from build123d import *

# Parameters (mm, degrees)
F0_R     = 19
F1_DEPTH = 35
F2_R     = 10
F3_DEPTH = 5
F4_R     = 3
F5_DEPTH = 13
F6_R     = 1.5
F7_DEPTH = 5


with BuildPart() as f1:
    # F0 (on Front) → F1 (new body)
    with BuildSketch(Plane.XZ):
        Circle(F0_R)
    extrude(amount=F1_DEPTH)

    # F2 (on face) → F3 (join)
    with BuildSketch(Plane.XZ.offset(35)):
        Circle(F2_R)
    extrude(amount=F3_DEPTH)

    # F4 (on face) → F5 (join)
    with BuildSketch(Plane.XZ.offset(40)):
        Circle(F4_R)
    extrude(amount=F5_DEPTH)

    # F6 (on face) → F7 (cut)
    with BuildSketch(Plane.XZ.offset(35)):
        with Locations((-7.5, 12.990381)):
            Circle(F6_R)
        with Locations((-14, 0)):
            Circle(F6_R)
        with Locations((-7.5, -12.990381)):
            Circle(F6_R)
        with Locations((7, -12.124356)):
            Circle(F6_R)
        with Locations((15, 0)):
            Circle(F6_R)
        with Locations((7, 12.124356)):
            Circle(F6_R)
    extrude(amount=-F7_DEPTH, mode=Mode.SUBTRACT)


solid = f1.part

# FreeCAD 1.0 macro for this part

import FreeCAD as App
import Part
import Sketcher

V = App.Vector
Q = App.Units.Quantity

doc = App.newDocument("Part")
params = doc.addObject("Spreadsheet::Sheet", "Params")
for row, (alias, value) in enumerate([
    ("sketch1_diameter", "38 mm"),
    ("pad1_length", "35 mm"),
    ("sketch2_diameter", "20 mm"),
    ("pad2_length", "5 mm"),
    ("sketch3_diameter", "6 mm"),
    ("pad3_length", "13 mm"),
    ("sketch4_diameter", "3 mm"),
    ("pocket1_length", "5 mm"),
], start=1):
    params.set(f"A{row}", alias)
    params.set(f"B{row}", "=" + value)
    params.setAlias(f"B{row}", alias)

body = doc.addObject("PartDesign::Body", "Body")

# Sketch on XZ plane
sketch1 = doc.addObject("Sketcher::SketchObject", "Sketch")
body.addObject(sketch1)
sketch1.AttachmentSupport = (doc.XZ_Plane, [""])
sketch1.MapMode = "FlatFace"
sketch1.addGeometry(Part.Circle(V(0, 0, 0), V(0, 0, 1), 19), False)
sketch1.addConstraint(Sketcher.Constraint("Coincident", 0, 3, -1, 1))
sketch1.addConstraint(Sketcher.Constraint("Diameter", 0, Q("38 mm")))
sketch1.setExpression("Constraints[1]", "Params.sketch1_diameter")
pad1 = doc.addObject("PartDesign::Pad", "Pad")
body.addObject(pad1)
pad1.Profile = sketch1
pad1.setExpression("Length", "Params.pad1_length")

# Sketch on XZ plane
sketch2 = doc.addObject("Sketcher::SketchObject", "Sketch001")
body.addObject(sketch2)
sketch2.AttachmentSupport = (doc.XZ_Plane, [""])
sketch2.MapMode = "FlatFace"
sketch2.AttachmentOffset = App.Placement(V(0, 0, 35), App.Rotation())
sketch2.addGeometry(Part.Circle(V(0, 0, 0), V(0, 0, 1), 10), False)
sketch2.addConstraint(Sketcher.Constraint("Coincident", 0, 3, -1, 1))
sketch2.addConstraint(Sketcher.Constraint("Diameter", 0, Q("20 mm")))
sketch2.setExpression("Constraints[1]", "Params.sketch2_diameter")
pad2 = doc.addObject("PartDesign::Pad", "Pad001")
body.addObject(pad2)
pad2.Profile = sketch2
pad2.setExpression("Length", "Params.pad2_length")

# Sketch on XZ plane
sketch3 = doc.addObject("Sketcher::SketchObject", "Sketch002")
body.addObject(sketch3)
sketch3.AttachmentSupport = (doc.XZ_Plane, [""])
sketch3.MapMode = "FlatFace"
sketch3.AttachmentOffset = App.Placement(V(0, 0, 40), App.Rotation())
sketch3.addGeometry(Part.Circle(V(0, 0, 0), V(0, 0, 1), 3), False)
sketch3.addConstraint(Sketcher.Constraint("Coincident", 0, 3, -1, 1))
sketch3.addConstraint(Sketcher.Constraint("Diameter", 0, Q("6 mm")))
sketch3.setExpression("Constraints[1]", "Params.sketch3_diameter")
pad3 = doc.addObject("PartDesign::Pad", "Pad002")
body.addObject(pad3)
pad3.Profile = sketch3
pad3.setExpression("Length", "Params.pad3_length")

# Sketch on XZ plane
sketch4 = doc.addObject("Sketcher::SketchObject", "Sketch003")
body.addObject(sketch4)
sketch4.AttachmentSupport = (doc.XZ_Plane, [""])
sketch4.MapMode = "FlatFace"
sketch4.AttachmentOffset = App.Placement(V(0, 0, 35), App.Rotation())
sketch4.addGeometry(Part.Circle(V(-7.5, 12.990381, 0), V(0, 0, 1), 1.5), False)
sketch4.addGeometry(Part.Circle(V(-14, 0, 0), V(0, 0, 1), 1.5), False)
sketch4.addGeometry(Part.Circle(V(-7.5, -12.990381, 0), V(0, 0, 1), 1.5), False)
sketch4.addGeometry(Part.Circle(V(7, -12.124356, 0), V(0, 0, 1), 1.5), False)
sketch4.addGeometry(Part.Circle(V(15, 0, 0), V(0, 0, 1), 1.5), False)
sketch4.addGeometry(Part.Circle(V(7, 12.124356, 0), V(0, 0, 1), 1.5), False)
sketch4.addConstraint(Sketcher.Constraint("Equal", 0, 1))
sketch4.addConstraint(Sketcher.Constraint("Equal", 1, 2))
sketch4.addConstraint(Sketcher.Constraint("Equal", 2, 3))
sketch4.addConstraint(Sketcher.Constraint("Equal", 3, 4))
sketch4.addConstraint(Sketcher.Constraint("Equal", 4, 5))
sketch4.addConstraint(Sketcher.Constraint("Symmetric", 0, 3, 2, 3, -1))
sketch4.addConstraint(Sketcher.Constraint("Symmetric", 3, 3, 5, 3, -1))
sketch4.addConstraint(Sketcher.Constraint("PointOnObject", 1, 3, -1))
sketch4.addConstraint(Sketcher.Constraint("PointOnObject", 4, 3, -1))
sketch4.addConstraint(Sketcher.Constraint("Diameter", 0, Q("3 mm")))
sketch4.addConstraint(Sketcher.Constraint("DistanceX", 1, 3, -1, 1, Q("14 mm")))
sketch4.addConstraint(Sketcher.Constraint("DistanceX", -1, 1, 3, 3, Q("7 mm")))
sketch4.addConstraint(Sketcher.Constraint("DistanceX", -1, 1, 4, 3, Q("15 mm")))
sketch4.addConstraint(Sketcher.Constraint("DistanceX", 0, 3, -1, 1, Q("7.5 mm")))
sketch4.addConstraint(Sketcher.Constraint("DistanceY", -1, 1, 0, 3, Q("12.990381 mm")))
sketch4.addConstraint(Sketcher.Constraint("DistanceY", 3, 3, -1, 1, Q("12.124356 mm")))
sketch4.setExpression("Constraints[9]", "Params.sketch4_diameter")
pocket1 = doc.addObject("PartDesign::Pocket", "Pocket")
body.addObject(pocket1)
pocket1.Profile = sketch4
pocket1.setExpression("Length", "Params.pocket1_length")

doc.recompute()
